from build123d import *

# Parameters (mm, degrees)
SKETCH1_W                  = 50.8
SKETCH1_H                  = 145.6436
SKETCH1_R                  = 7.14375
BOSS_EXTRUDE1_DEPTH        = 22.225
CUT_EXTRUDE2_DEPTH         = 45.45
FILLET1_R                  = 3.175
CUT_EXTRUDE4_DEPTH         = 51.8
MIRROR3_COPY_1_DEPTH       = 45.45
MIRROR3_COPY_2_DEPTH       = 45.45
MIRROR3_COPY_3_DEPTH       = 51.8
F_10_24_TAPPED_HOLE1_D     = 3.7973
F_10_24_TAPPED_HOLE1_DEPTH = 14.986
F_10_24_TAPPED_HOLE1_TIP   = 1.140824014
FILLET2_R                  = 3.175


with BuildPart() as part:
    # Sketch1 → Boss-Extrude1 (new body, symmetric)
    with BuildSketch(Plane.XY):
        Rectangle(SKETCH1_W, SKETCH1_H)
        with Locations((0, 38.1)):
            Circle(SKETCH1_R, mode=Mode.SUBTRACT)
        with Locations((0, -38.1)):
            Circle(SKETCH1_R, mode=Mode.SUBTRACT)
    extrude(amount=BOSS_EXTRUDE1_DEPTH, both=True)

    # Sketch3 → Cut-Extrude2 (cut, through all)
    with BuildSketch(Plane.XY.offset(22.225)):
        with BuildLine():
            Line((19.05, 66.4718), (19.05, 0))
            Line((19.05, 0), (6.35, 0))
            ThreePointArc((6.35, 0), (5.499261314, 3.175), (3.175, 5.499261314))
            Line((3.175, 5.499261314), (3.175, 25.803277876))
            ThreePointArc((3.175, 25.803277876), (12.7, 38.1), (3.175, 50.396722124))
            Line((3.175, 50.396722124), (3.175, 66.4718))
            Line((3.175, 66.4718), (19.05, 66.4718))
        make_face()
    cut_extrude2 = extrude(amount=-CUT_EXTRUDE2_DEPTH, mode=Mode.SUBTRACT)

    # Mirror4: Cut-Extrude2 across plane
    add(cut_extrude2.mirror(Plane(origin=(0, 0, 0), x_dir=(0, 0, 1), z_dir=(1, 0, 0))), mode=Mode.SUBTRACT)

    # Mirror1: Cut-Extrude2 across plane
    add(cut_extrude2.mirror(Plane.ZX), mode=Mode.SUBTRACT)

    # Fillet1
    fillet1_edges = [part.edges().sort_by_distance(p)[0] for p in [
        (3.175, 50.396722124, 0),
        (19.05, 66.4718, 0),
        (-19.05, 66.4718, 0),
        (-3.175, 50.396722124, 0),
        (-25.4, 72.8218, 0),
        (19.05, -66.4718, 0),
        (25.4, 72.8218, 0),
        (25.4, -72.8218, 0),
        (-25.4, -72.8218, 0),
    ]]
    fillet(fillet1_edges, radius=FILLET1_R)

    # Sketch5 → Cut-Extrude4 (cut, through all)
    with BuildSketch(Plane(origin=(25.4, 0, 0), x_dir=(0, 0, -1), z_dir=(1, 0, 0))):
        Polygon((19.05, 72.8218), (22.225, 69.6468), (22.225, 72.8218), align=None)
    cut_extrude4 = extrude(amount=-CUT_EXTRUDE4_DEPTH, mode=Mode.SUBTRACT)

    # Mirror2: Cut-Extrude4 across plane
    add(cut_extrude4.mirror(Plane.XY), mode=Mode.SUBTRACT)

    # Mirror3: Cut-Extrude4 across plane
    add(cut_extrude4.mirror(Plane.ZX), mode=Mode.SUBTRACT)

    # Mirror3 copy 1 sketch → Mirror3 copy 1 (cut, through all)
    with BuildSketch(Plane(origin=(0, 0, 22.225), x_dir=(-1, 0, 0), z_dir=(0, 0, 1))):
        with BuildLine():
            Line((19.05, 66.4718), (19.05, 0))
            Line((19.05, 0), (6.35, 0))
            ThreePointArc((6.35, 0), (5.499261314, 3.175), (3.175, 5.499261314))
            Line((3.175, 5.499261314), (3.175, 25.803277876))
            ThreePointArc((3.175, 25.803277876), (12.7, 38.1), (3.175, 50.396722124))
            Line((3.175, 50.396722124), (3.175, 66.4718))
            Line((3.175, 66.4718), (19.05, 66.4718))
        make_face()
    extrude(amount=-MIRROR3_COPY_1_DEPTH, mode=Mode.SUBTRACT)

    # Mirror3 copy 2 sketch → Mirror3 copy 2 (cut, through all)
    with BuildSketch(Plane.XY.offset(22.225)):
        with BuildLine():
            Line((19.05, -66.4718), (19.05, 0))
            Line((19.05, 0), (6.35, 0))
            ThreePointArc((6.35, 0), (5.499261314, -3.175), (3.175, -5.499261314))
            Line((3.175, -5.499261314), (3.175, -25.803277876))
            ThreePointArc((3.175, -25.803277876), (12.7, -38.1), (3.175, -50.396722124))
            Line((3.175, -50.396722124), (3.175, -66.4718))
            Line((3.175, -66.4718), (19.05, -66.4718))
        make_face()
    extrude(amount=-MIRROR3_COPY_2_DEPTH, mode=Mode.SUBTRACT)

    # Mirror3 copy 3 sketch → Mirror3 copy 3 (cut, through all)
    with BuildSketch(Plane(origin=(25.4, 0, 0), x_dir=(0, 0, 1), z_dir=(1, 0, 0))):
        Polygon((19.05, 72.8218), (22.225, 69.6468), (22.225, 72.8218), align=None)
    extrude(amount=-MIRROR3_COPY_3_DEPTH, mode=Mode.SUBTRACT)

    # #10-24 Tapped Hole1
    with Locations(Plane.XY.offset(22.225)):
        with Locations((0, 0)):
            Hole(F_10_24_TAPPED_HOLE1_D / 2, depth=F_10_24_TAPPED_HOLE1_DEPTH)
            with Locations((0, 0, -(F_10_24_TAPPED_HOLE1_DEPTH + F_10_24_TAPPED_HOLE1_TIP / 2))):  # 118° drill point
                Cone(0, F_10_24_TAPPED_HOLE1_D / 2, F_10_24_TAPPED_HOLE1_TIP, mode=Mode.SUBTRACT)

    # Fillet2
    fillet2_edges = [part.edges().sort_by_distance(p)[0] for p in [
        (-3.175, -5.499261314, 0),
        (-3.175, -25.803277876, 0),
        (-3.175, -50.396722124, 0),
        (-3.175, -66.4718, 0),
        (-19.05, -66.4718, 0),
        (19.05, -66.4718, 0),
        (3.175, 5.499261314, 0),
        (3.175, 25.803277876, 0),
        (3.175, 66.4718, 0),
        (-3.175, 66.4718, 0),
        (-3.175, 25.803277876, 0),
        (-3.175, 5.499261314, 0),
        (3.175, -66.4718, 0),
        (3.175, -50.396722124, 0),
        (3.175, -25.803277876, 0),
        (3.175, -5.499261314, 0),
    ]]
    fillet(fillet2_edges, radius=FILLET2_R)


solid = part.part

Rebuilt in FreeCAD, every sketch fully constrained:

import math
import FreeCAD as App
import Part
import Sketcher
Q = App.Units.Quantity


def edges_at(feature, points):
    """Names of the edges that pass closest to the given points."""
    edges = feature.Shape.Edges
    near = lambda p: min(range(len(edges)), key=lambda i: edges[i].distToShape(Part.Vertex(*p))[0])
    return sorted({f"Edge{near(p) + 1}" for p in points})


def add_polygon(sketch, points):
    """Adds a closed chain of lines whose ends are joined by coincident constraints."""
    first, n = sketch.GeometryCount, len(points)
    for a, b in zip(points, points[1:] + points[:1]):
        sketch.addGeometry(Part.LineSegment(App.Vector(*a, 0), App.Vector(*b, 0)), False)
    for i in range(n):
        sketch.addConstraint(Sketcher.Constraint("Coincident", first + i, 2, first + (i + 1) % n, 1))

doc = App.newDocument("Part")
body = doc.addObject("PartDesign::Body", "Body")

# Sketch on XY plane
sketch1 = body.newObject("Sketcher::SketchObject", "Sketch")
sketch1.AttachmentSupport = (doc.getObject("XY_Plane"), [""])
sketch1.MapMode = "FlatFace"
add_polygon(sketch1, [(-25, 73), (-25, -73), (25, -73), (25, 73)])  # lines 0-3
sketch1.addGeometry(Part.Circle(App.Vector(0, -38, 0), App.Vector(0, 0, 1), 7), False)  # 4
sketch1.addGeometry(Part.Circle(App.Vector(0, 38, 0), App.Vector(0, 0, 1), 7), False)  # 5
sketch1.addConstraint(Sketcher.Constraint("Vertical", 0))
sketch1.addConstraint(Sketcher.Constraint("Horizontal", 1))
sketch1.addConstraint(Sketcher.Constraint("Vertical", 2))
sketch1.addConstraint(Sketcher.Constraint("Horizontal", 3))
sketch1.addConstraint(Sketcher.Constraint("Equal", 4, 5))
sketch1.addConstraint(Sketcher.Constraint("Symmetric", 4, 3, 5, 3, -1, 1))
sketch1.addConstraint(Sketcher.Constraint("Symmetric", 0, 2, 2, 2, -1, 1))
sketch1.addConstraint(Sketcher.Constraint("PointOnObject", 4, 3, -2))
sketch1.addConstraint(Sketcher.Constraint("DistanceX", 1, 1, 1, 2, Q("2 in")))
sketch1.addConstraint(Sketcher.Constraint("Diameter", 4, Q("0.5625 in")))
sketch1.addConstraint(Sketcher.Constraint("DistanceY", 4, 3, 5, 3, Q("3 in")))
sketch1.addConstraint(Sketcher.Constraint("DistanceY", 0, 2, 0, 1, Q("5.734 in")))
pad1 = body.newObject("PartDesign::Pad", "Pad")
pad1.Profile = sketch1
pad1.Length = Q("1.75 in")
pad1.Midplane = True

# Sketch on XY plane
sketch2 = body.newObject("Sketcher::SketchObject", "Sketch001")
sketch2.AttachmentSupport = (doc.getObject("XY_Plane"), [""])
sketch2.MapMode = "FlatFace"
sketch2.AttachmentOffset = App.Placement(App.Vector(0, 0, 0.875 * 25.4), App.Rotation())
sketch2.addGeometry(Part.LineSegment(App.Vector(19, 0, 0), App.Vector(19, 66, 0)), False)
sketch2.addGeometry(Part.LineSegment(App.Vector(19, 66, 0), App.Vector(3, 66, 0)), False)
sketch2.addGeometry(Part.LineSegment(App.Vector(3, 66, 0), App.Vector(3, 50, 0)), False)
sketch2.addGeometry(Part.ArcOfCircle(Part.Circle(App.Vector(0, 38, 0), App.Vector(0, 0, 1), 13), math.radians(-76), math.radians(76)), False)
sketch2.addGeometry(Part.LineSegment(App.Vector(3, 26, 0), App.Vector(3, 5, 0)), False)
sketch2.addGeometry(Part.ArcOfCircle(Part.Circle(App.Vector(0, 0, 0), App.Vector(0, 0, 1), 6), math.radians(0), math.radians(60)), False)
sketch2.addGeometry(Part.LineSegment(App.Vector(6, 0, 0), App.Vector(19, 0, 0)), False)
sketch2.addConstraint(Sketcher.Constraint("Coincident", 0, 2, 1, 1))
sketch2.addConstraint(Sketcher.Constraint("Coincident", 1, 2, 2, 1))
sketch2.addConstraint(Sketcher.Constraint("Coincident", 2, 2, 3, 2))
sketch2.addConstraint(Sketcher.Constraint("Coincident", 3, 1, 4, 1))
sketch2.addConstraint(Sketcher.Constraint("Coincident", 4, 2, 5, 2))
sketch2.addConstraint(Sketcher.Constraint("Coincident", 5, 1, 6, 1))
sketch2.addConstraint(Sketcher.Constraint("Coincident", 6, 2, 0, 1))
sketch2.addConstraint(Sketcher.Constraint("Vertical", 0))
sketch2.addConstraint(Sketcher.Constraint("Horizontal", 1))
sketch2.addConstraint(Sketcher.Constraint("Vertical", 2))
sketch2.addConstraint(Sketcher.Constraint("Vertical", 4))
sketch2.addConstraint(Sketcher.Constraint("Horizontal", 6))
sketch2.addConstraint(Sketcher.Constraint("Coincident", 5, 3, -1, 1))
sketch2.addConstraint(Sketcher.Constraint("PointOnObject", 3, 3, -2))
sketch2.addConstraint(Sketcher.Constraint("PointOnObject", 5, 1, -1))
sketch2.addConstraint(Sketcher.Constraint("Vertical", 2, 2, 3, 1))
sketch2.addConstraint(Sketcher.Constraint("Radius", 3, Q("0.5 in")))
sketch2.addConstraint(Sketcher.Constraint("Radius", 5, Q("0.25 in")))
sketch2.addConstraint(Sketcher.Constraint("DistanceX", 6, 1, 6, 2, Q("0.5 in")))
sketch2.addConstraint(Sketcher.Constraint("DistanceY", -1, 1, 3, 3, Q("1.5 in")))
sketch2.addConstraint(Sketcher.Constraint("DistanceX", 1, 2, 1, 1, Q("0.625 in")))
sketch2.addConstraint(Sketcher.Constraint("DistanceY", 0, 1, 0, 2, Q("2.617 in")))
pocket1 = body.newObject("PartDesign::Pocket", "Pocket")
pocket1.Profile = sketch2
pocket1.Type = "ThroughAll"
doc.recompute()

mirrored = body.newObject("PartDesign::Mirrored", "Mirrored")
mirrored.Originals = [pocket1]
mirrored.MirrorPlane = (doc.getObject("YZ_Plane"), [""])
body.Tip = mirrored
doc.recompute()

mirrored2 = body.newObject("PartDesign::Mirrored", "Mirrored001")
mirrored2.Originals = [pocket1]
mirrored2.MirrorPlane = (doc.getObject("XZ_Plane"), [""])
body.Tip = mirrored2
doc.recompute()

fillet = body.newObject("PartDesign::Fillet", "Fillet")
fillet.Base = (mirrored2, edges_at(mirrored2, [
    (3.175, 50.397, 0),
    (19.05, 66.472, 0),
    (-19.05, 66.472, 0),
    (-3.175, 50.397, 0),
    (-25.4, 72.822, 0),
    (19.05, -66.472, 0),
    (25.4, 72.822, 0),
    (25.4, -72.822, 0),
    (-25.4, -72.822, 0),
]))
fillet.Radius = Q("0.125 in")

# Sketch on YZ plane
sketch3 = body.newObject("Sketcher::SketchObject", "Sketch002")
sketch3.AttachmentSupport = (doc.getObject("YZ_Plane"), [""])
sketch3.MapMode = "FlatFace"
sketch3.AttachmentOffset = App.Placement(App.Vector(0, 0, 1 * 25.4), App.Rotation())
add_polygon(sketch3, [(72.8, -19.1), (69.6, -22.2), (72.8, -22.2)])  # lines 0-2
sketch3.addConstraint(Sketcher.Constraint("Horizontal", 1))
sketch3.addConstraint(Sketcher.Constraint("Vertical", 2))
sketch3.addConstraint(Sketcher.Constraint("Equal", 1, 2))
sketch3.addConstraint(Sketcher.Constraint("DistanceX", 1, 1, 1, 2, Q("0.125 in")))
sketch3.addConstraint(Sketcher.Constraint("DistanceY", 2, 2, -1, 1, Q("0.75 in")))
sketch3.addConstraint(Sketcher.Constraint("DistanceX", -1, 1, 0, 2, Q("2.742 in")))
pocket2 = body.newObject("PartDesign::Pocket", "Pocket001")
pocket2.Profile = sketch3
pocket2.Type = "ThroughAll"
doc.recompute()

mirrored3 = body.newObject("PartDesign::Mirrored", "Mirrored002")
mirrored3.Originals = [pocket2]
mirrored3.MirrorPlane = (doc.getObject("XY_Plane"), [""])
body.Tip = mirrored3
doc.recompute()

mirrored4 = body.newObject("PartDesign::Mirrored", "Mirrored003")
mirrored4.Originals = [pocket2]
mirrored4.MirrorPlane = (doc.getObject("XZ_Plane"), [""])
body.Tip = mirrored4

# Sketch on XY plane
sketch4 = body.newObject("Sketcher::SketchObject", "Sketch003")
sketch4.AttachmentSupport = (doc.getObject("XY_Plane"), [""])
sketch4.MapMode = "FlatFace"
sketch4.AttachmentOffset = App.Placement(App.Vector(0, 0, 0.875 * 25.4), App.Rotation())
sketch4.addGeometry(Part.LineSegment(App.Vector(-19, 0, 0), App.Vector(-19, -66, 0)), False)
sketch4.addGeometry(Part.LineSegment(App.Vector(-19, -66, 0), App.Vector(-3, -66, 0)), False)
sketch4.addGeometry(Part.LineSegment(App.Vector(-3, -66, 0), App.Vector(-3, -50, 0)), False)
sketch4.addGeometry(Part.ArcOfCircle(Part.Circle(App.Vector(0, -38, 0), App.Vector(0, 0, 1), 13), math.radians(104), math.radians(256)), False)
sketch4.addGeometry(Part.LineSegment(App.Vector(-3, -26, 0), App.Vector(-3, -5, 0)), False)
sketch4.addGeometry(Part.ArcOfCircle(Part.Circle(App.Vector(0, 0, 0), App.Vector(0, 0, 1), 6), math.radians(180), math.radians(240)), False)
sketch4.addGeometry(Part.LineSegment(App.Vector(-6, 0, 0), App.Vector(-19, 0, 0)), False)
sketch4.addConstraint(Sketcher.Constraint("Coincident", 0, 2, 1, 1))
sketch4.addConstraint(Sketcher.Constraint("Coincident", 1, 2, 2, 1))
sketch4.addConstraint(Sketcher.Constraint("Coincident", 2, 2, 3, 2))
sketch4.addConstraint(Sketcher.Constraint("Coincident", 3, 1, 4, 1))
sketch4.addConstraint(Sketcher.Constraint("Coincident", 4, 2, 5, 2))
sketch4.addConstraint(Sketcher.Constraint("Coincident", 5, 1, 6, 1))
sketch4.addConstraint(Sketcher.Constraint("Coincident", 6, 2, 0, 1))
sketch4.addConstraint(Sketcher.Constraint("Vertical", 0))
sketch4.addConstraint(Sketcher.Constraint("Horizontal", 1))
sketch4.addConstraint(Sketcher.Constraint("Vertical", 2))
sketch4.addConstraint(Sketcher.Constraint("Vertical", 4))
sketch4.addConstraint(Sketcher.Constraint("Horizontal", 6))
sketch4.addConstraint(Sketcher.Constraint("Coincident", 5, 3, -1, 1))
sketch4.addConstraint(Sketcher.Constraint("PointOnObject", 3, 3, -2))
sketch4.addConstraint(Sketcher.Constraint("PointOnObject", 5, 1, -1))
sketch4.addConstraint(Sketcher.Constraint("Vertical", 2, 2, 3, 1))
sketch4.addConstraint(Sketcher.Constraint("Radius", 3, Q("0.5 in")))
sketch4.addConstraint(Sketcher.Constraint("Radius", 5, Q("0.25 in")))
sketch4.addConstraint(Sketcher.Constraint("DistanceX", 6, 2, 6, 1, Q("0.5 in")))
sketch4.addConstraint(Sketcher.Constraint("DistanceY", 3, 3, -1, 1, Q("1.5 in")))
sketch4.addConstraint(Sketcher.Constraint("DistanceX", 1, 1, 1, 2, Q("0.625 in")))
sketch4.addConstraint(Sketcher.Constraint("DistanceY", 0, 2, 0, 1, Q("2.617 in")))
pocket3 = body.newObject("PartDesign::Pocket", "Pocket002")
pocket3.Profile = sketch4
pocket3.Type = "ThroughAll"

# Sketch on XY plane
sketch5 = body.newObject("Sketcher::SketchObject", "Sketch004")
sketch5.AttachmentSupport = (doc.getObject("XY_Plane"), [""])
sketch5.MapMode = "FlatFace"
sketch5.AttachmentOffset = App.Placement(App.Vector(0, 0, 0.875 * 25.4), App.Rotation())
sketch5.addGeometry(Part.LineSegment(App.Vector(19, -66, 0), App.Vector(19, 0, 0)), False)
sketch5.addGeometry(Part.LineSegment(App.Vector(19, 0, 0), App.Vector(6, 0, 0)), False)
sketch5.addGeometry(Part.ArcOfCircle(Part.Circle(App.Vector(0, 0, 0), App.Vector(0, 0, 1), 6), math.radians(-60), math.radians(0)), False)
sketch5.addGeometry(Part.LineSegment(App.Vector(3, -5, 0), App.Vector(3, -26, 0)), False)
sketch5.addGeometry(Part.ArcOfCircle(Part.Circle(App.Vector(0, -38, 0), App.Vector(0, 0, 1), 13), math.radians(-76), math.radians(76)), False)
sketch5.addGeometry(Part.LineSegment(App.Vector(3, -50, 0), App.Vector(3, -66, 0)), False)
sketch5.addGeometry(Part.LineSegment(App.Vector(3, -66, 0), App.Vector(19, -66, 0)), False)
sketch5.addConstraint(Sketcher.Constraint("Coincident", 0, 2, 1, 1))
sketch5.addConstraint(Sketcher.Constraint("Coincident", 1, 2, 2, 2))
sketch5.addConstraint(Sketcher.Constraint("Coincident", 2, 1, 3, 1))
sketch5.addConstraint(Sketcher.Constraint("Coincident", 3, 2, 4, 2))
sketch5.addConstraint(Sketcher.Constraint("Coincident", 4, 1, 5, 1))
sketch5.addConstraint(Sketcher.Constraint("Coincident", 5, 2, 6, 1))
sketch5.addConstraint(Sketcher.Constraint("Coincident", 6, 2, 0, 1))
sketch5.addConstraint(Sketcher.Constraint("Vertical", 0))
sketch5.addConstraint(Sketcher.Constraint("Horizontal", 1))
sketch5.addConstraint(Sketcher.Constraint("Vertical", 3))
sketch5.addConstraint(Sketcher.Constraint("Vertical", 5))
sketch5.addConstraint(Sketcher.Constraint("Horizontal", 6))
sketch5.addConstraint(Sketcher.Constraint("Coincident", 2, 3, -1, 1))
sketch5.addConstraint(Sketcher.Constraint("PointOnObject", 4, 3, -2))
sketch5.addConstraint(Sketcher.Constraint("PointOnObject", 0, 2, -1))
sketch5.addConstraint(Sketcher.Constraint("Vertical", 3, 2, 4, 1))
sketch5.addConstraint(Sketcher.Constraint("Radius", 4, Q("0.5 in")))
sketch5.addConstraint(Sketcher.Constraint("Radius", 2, Q("0.25 in")))
sketch5.addConstraint(Sketcher.Constraint("DistanceX", 1, 2, 1, 1, Q("0.5 in")))
sketch5.addConstraint(Sketcher.Constraint("DistanceY", 4, 3, -1, 1, Q("1.5 in")))
sketch5.addConstraint(Sketcher.Constraint("DistanceX", 6, 1, 6, 2, Q("0.625 in")))
sketch5.addConstraint(Sketcher.Constraint("DistanceY", 0, 1, 0, 2, Q("2.617 in")))
pocket4 = body.newObject("PartDesign::Pocket", "Pocket003")
pocket4.Profile = sketch5
pocket4.Type = "ThroughAll"

# Sketch on YZ plane
sketch6 = body.newObject("Sketcher::SketchObject", "Sketch005")
sketch6.AttachmentSupport = (doc.getObject("YZ_Plane"), [""])
sketch6.MapMode = "FlatFace"
sketch6.AttachmentOffset = App.Placement(App.Vector(0, 0, 1 * 25.4), App.Rotation())
add_polygon(sketch6, [(-72.8, 19.1), (-69.6, 22.2), (-72.8, 22.2)])  # lines 0-2
sketch6.addConstraint(Sketcher.Constraint("Horizontal", 1))
sketch6.addConstraint(Sketcher.Constraint("Vertical", 2))
sketch6.addConstraint(Sketcher.Constraint("Equal", 1, 2))
sketch6.addConstraint(Sketcher.Constraint("DistanceX", 1, 2, 1, 1, Q("0.125 in")))
sketch6.addConstraint(Sketcher.Constraint("DistanceY", -1, 1, 2, 2, Q("0.75 in")))
sketch6.addConstraint(Sketcher.Constraint("DistanceX", 0, 2, -1, 1, Q("2.742 in")))
pocket5 = body.newObject("PartDesign::Pocket", "Pocket004")
pocket5.Profile = sketch6
pocket5.Type = "ThroughAll"

# Sketch on XY plane
sketch7 = body.newObject("Sketcher::SketchObject", "Sketch006")
sketch7.AttachmentSupport = (doc.getObject("XY_Plane"), [""])
sketch7.MapMode = "FlatFace"
sketch7.AttachmentOffset = App.Placement(App.Vector(0, 0, 0.875 * 25.4), App.Rotation())
sketch7.addGeometry(Part.Circle(App.Vector(0, 0, 0), App.Vector(0, 0, 1), 1.9), False)
sketch7.addConstraint(Sketcher.Constraint("Coincident", 0, 3, -1, 1))
sketch7.addConstraint(Sketcher.Constraint("Diameter", 0, Q("0.1495 in")))
doc.recompute()
hole = body.newObject("PartDesign::Hole", "Hole")
hole.Profile = sketch7
hole.ThreadType = "None"
hole.Diameter = Q("0.1495 in")
hole.DepthType = "Dimension"
hole.Depth = Q("0.59 in")
hole.DrillPoint = "Angled"
hole.DrillPointAngle = 118
doc.recompute()

fillet2 = body.newObject("PartDesign::Fillet", "Fillet001")
fillet2.Base = (hole, edges_at(hole, [
    (-3.175, -5.499, 0),
    (-3.175, -25.803, 0),
    (-3.175, -50.397, 0),
    (-3.175, -66.472, 0),
    (-19.05, -66.472, 0),
    (19.05, -66.472, 0),
    (3.175, 5.499, 0),
    (3.175, 25.803, 0),
    (3.175, 66.472, 0),
    (-3.175, 66.472, 0),
    (-3.175, 25.803, 0),
    (-3.175, 5.499, 0),
    (3.175, -66.472, 0),
    (3.175, -50.397, 0),
    (3.175, -25.803, 0),
    (3.175, -5.499, 0),
]))
fillet2.Radius = Q("0.125 in")

doc.recompute()
